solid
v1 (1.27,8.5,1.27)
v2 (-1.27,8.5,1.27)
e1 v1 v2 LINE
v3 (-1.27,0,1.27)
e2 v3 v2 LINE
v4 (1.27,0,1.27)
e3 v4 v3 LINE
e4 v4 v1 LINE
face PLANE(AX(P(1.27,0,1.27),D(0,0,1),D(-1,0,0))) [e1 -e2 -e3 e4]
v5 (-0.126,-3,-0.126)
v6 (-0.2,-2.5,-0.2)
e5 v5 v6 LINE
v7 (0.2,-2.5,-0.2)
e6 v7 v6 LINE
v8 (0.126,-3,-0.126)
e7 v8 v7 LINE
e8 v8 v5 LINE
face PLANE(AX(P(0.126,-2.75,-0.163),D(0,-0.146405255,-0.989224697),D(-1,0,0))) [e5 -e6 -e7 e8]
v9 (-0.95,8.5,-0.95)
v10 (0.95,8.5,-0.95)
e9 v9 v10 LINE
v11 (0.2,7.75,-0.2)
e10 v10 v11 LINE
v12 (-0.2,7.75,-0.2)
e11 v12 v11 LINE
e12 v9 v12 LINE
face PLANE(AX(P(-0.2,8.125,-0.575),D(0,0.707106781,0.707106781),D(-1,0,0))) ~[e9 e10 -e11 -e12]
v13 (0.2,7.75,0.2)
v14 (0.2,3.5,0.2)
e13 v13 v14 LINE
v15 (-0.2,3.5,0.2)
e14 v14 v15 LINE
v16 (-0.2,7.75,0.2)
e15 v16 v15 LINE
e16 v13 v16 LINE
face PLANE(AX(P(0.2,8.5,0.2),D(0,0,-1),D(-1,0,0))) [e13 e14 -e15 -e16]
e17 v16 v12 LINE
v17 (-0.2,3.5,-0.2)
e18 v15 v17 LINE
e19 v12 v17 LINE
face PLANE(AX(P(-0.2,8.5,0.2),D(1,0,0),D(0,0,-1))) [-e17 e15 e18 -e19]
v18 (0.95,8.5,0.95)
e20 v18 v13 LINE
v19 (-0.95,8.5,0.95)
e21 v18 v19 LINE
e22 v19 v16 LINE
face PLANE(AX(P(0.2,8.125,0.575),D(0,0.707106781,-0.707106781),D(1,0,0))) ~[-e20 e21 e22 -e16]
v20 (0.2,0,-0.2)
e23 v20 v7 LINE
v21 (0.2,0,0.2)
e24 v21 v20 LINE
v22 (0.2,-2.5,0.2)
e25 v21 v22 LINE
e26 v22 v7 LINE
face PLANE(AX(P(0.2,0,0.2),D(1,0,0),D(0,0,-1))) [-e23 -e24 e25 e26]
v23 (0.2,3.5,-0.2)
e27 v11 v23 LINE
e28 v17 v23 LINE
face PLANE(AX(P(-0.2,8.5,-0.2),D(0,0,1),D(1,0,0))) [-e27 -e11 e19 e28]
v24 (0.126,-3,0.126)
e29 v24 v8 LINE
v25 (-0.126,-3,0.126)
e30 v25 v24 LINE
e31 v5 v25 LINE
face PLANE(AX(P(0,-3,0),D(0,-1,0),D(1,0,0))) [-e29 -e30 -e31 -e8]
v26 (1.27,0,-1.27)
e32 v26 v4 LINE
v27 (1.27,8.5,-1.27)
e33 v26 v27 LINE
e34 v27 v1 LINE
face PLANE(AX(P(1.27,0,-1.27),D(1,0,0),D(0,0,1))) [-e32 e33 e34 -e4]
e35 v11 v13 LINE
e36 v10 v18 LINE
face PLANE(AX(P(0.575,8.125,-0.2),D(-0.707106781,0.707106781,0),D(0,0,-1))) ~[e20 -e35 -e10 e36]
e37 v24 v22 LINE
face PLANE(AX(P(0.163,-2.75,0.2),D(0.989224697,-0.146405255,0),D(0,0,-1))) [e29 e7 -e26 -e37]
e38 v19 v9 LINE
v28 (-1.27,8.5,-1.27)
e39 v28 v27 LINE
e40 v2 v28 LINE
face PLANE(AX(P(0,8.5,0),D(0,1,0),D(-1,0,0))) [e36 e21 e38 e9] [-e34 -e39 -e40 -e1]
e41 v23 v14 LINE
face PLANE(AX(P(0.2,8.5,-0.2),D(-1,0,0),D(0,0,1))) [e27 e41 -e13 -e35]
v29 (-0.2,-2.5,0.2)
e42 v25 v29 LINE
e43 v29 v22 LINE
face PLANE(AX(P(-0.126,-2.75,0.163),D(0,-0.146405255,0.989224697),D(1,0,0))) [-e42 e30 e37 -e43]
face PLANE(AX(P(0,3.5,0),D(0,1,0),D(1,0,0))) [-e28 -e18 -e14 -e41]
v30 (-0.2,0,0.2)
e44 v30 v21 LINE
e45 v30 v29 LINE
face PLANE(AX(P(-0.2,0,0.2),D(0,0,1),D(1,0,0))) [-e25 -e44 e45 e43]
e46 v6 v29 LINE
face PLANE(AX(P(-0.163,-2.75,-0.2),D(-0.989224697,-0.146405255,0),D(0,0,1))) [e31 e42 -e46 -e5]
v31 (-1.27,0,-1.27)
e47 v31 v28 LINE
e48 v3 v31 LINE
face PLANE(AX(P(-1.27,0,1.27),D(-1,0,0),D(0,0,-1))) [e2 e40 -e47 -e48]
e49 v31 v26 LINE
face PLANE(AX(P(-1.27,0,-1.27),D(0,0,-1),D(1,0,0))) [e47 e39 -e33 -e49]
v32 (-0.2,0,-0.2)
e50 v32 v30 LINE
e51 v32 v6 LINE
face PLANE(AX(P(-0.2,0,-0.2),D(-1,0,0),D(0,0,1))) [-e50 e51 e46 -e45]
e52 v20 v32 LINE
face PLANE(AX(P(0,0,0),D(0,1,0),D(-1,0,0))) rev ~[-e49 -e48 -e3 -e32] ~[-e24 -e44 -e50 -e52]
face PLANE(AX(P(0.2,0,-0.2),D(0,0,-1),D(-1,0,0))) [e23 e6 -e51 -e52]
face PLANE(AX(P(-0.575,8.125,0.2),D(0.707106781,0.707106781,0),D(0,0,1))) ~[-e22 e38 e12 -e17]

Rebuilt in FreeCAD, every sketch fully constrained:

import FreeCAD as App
import Part
import Sketcher


def edges_at(feature, points):
    """Names of the edges that pass closest to the given points."""
    edges = feature.Shape.Edges
    near = lambda p: min(range(len(edges)), key=lambda i: edges[i].distToShape(Part.Vertex(*p))[0])
    return sorted({f"Edge{near(p) + 1}" for p in points})

doc = App.newDocument("Part")
body = doc.addObject("PartDesign::Body", "Body")

# Sketch on XZ plane
sketch1 = body.newObject("Sketcher::SketchObject", "Sketch")
sketch1.AttachmentSupport = (doc.getObject("XZ_Plane"), [""])
sketch1.MapMode = "FlatFace"
sketch1.addGeometry(Part.LineSegment(App.Vector(-1.3, 1.3, 0), App.Vector(1.3, 1.3, 0)), False)
sketch1.addGeometry(Part.LineSegment(App.Vector(1.3, 1.3, 0), App.Vector(1.3, -1.3, 0)), False)
sketch1.addGeometry(Part.LineSegment(App.Vector(1.3, -1.3, 0), App.Vector(-1.3, -1.3, 0)), False)
sketch1.addGeometry(Part.LineSegment(App.Vector(-1.3, -1.3, 0), App.Vector(-1.3, 1.3, 0)), False)
sketch1.addConstraint(Sketcher.Constraint("Coincident", 0, 2, 1, 1))
sketch1.addConstraint(Sketcher.Constraint("Coincident", 1, 2, 2, 1))
sketch1.addConstraint(Sketcher.Constraint("Coincident", 2, 2, 3, 1))
sketch1.addConstraint(Sketcher.Constraint("Coincident", 3, 2, 0, 1))
sketch1.addConstraint(Sketcher.Constraint("Horizontal", 0))
sketch1.addConstraint(Sketcher.Constraint("Vertical", 1))
sketch1.addConstraint(Sketcher.Constraint("Horizontal", 2))
sketch1.addConstraint(Sketcher.Constraint("Vertical", 3))
sketch1.addConstraint(Sketcher.Constraint("Symmetric", 0, 2, 2, 2, -1, 1))
sketch1.addConstraint(Sketcher.Constraint("Equal", 2, 1))
sketch1.addConstraint(Sketcher.Constraint("DistanceX", 0, 1, 0, 2, 2.54))
pad1 = body.newObject("PartDesign::Pad", "Pad")
pad1.Profile = sketch1
pad1.Length = 8.5
pad1.Reversed = True

# Sketch on XZ plane
sketch2 = body.newObject("Sketcher::SketchObject", "Sketch001")
sketch2.AttachmentSupport = (doc.getObject("XZ_Plane"), [""])
sketch2.MapMode = "FlatFace"
sketch2.AttachmentOffset = App.Placement(App.Vector(0, 0, -8.5), App.Rotation())
sketch2.addGeometry(Part.LineSegment(App.Vector(-0.2, 0.2, 0), App.Vector(0.2, 0.2, 0)), False)
sketch2.addGeometry(Part.LineSegment(App.Vector(0.2, 0.2, 0), App.Vector(0.2, -0.2, 0)), False)
sketch2.addGeometry(Part.LineSegment(App.Vector(0.2, -0.2, 0), App.Vector(-0.2, -0.2, 0)), False)
sketch2.addGeometry(Part.LineSegment(App.Vector(-0.2, -0.2, 0), App.Vector(-0.2, 0.2, 0)), False)
sketch2.addConstraint(Sketcher.Constraint("Coincident", 0, 2, 1, 1))
sketch2.addConstraint(Sketcher.Constraint("Coincident", 1, 2, 2, 1))
sketch2.addConstraint(Sketcher.Constraint("Coincident", 2, 2, 3, 1))
sketch2.addConstraint(Sketcher.Constraint("Coincident", 3, 2, 0, 1))
sketch2.addConstraint(Sketcher.Constraint("Horizontal", 0))
sketch2.addConstraint(Sketcher.Constraint("Vertical", 1))
sketch2.addConstraint(Sketcher.Constraint("Horizontal", 2))
sketch2.addConstraint(Sketcher.Constraint("Vertical", 3))
sketch2.addConstraint(Sketcher.Constraint("Symmetric", 0, 2, 2, 2, -1, 1))
sketch2.addConstraint(Sketcher.Constraint("Equal", 2, 1))
sketch2.addConstraint(Sketcher.Constraint("DistanceX", 0, 1, 0, 2, 0.4))
pocket1 = body.newObject("PartDesign::Pocket", "Pocket")
pocket1.Profile = sketch2
pocket1.Length = 5
pocket1.Reversed = True
doc.recompute()

chamfer = body.newObject("PartDesign::Chamfer", "Chamfer")
chamfer.Base = (pocket1, edges_at(pocket1, [
    (0, 8.5, 0.2),
    (-0.2, 8.5, 0),
    (0, 8.5, -0.2),
    (0.2, 8.5, 0),
]))
chamfer.Size = 0.75

# Sketch on XZ plane
sketch3 = body.newObject("Sketcher::SketchObject", "Sketch002")
sketch3.AttachmentSupport = (doc.getObject("XZ_Plane"), [""])
sketch3.MapMode = "FlatFace"
sketch3.addGeometry(Part.LineSegment(App.Vector(0.2, 0.2, 0), App.Vector(-0.2, 0.2, 0)), False)
sketch3.addGeometry(Part.LineSegment(App.Vector(-0.2, 0.2, 0), App.Vector(-0.2, -0.2, 0)), False)
sketch3.addGeometry(Part.LineSegment(App.Vector(-0.2, -0.2, 0), App.Vector(0.2, -0.2, 0)), False)
sketch3.addGeometry(Part.LineSegment(App.Vector(0.2, -0.2, 0), App.Vector(0.2, 0.2, 0)), False)
sketch3.addConstraint(Sketcher.Constraint("Coincident", 0, 2, 1, 1))
sketch3.addConstraint(Sketcher.Constraint("Coincident", 1, 2, 2, 1))
sketch3.addConstraint(Sketcher.Constraint("Coincident", 2, 2, 3, 1))
sketch3.addConstraint(Sketcher.Constraint("Coincident", 3, 2, 0, 1))
sketch3.addConstraint(Sketcher.Constraint("Horizontal", 0))
sketch3.addConstraint(Sketcher.Constraint("Vertical", 1))
sketch3.addConstraint(Sketcher.Constraint("Horizontal", 2))
sketch3.addConstraint(Sketcher.Constraint("Vertical", 3))
sketch3.addConstraint(Sketcher.Constraint("Symmetric", 0, 2, 2, 2, -1, 1))
sketch3.addConstraint(Sketcher.Constraint("Equal", 2, 1))
sketch3.addConstraint(Sketcher.Constraint("DistanceX", 0, 2, 0, 1, 0.4))
pad2 = body.newObject("PartDesign::Pad", "Pad001")
pad2.Profile = sketch3
pad2.Length = 3
doc.recompute()

chamfer2 = body.newObject("PartDesign::Chamfer", "Chamfer001")
chamfer2.Base = (pad2, edges_at(pad2, [(-0.2, -3, 0)]))
chamfer2.ChamferType = "Two distances"
chamfer2.Size = 0.074
chamfer2.Size2 = 0.5
chamfer2.FlipDirection = True
doc.recompute()

chamfer3 = body.newObject("PartDesign::Chamfer", "Chamfer002")
chamfer3.Base = (chamfer2, edges_at(chamfer2, [(0.2, -3, 0)]))
chamfer3.ChamferType = "Two distances"
chamfer3.Size = 0.074
chamfer3.Size2 = 0.5
doc.recompute()

chamfer4 = body.newObject("PartDesign::Chamfer", "Chamfer003")
chamfer4.Base = (chamfer3, edges_at(chamfer3, [(0, -3, 0.2)]))
chamfer4.ChamferType = "Two distances"
chamfer4.Size = 0.074
chamfer4.Size2 = 0.5
doc.recompute()

chamfer5 = body.newObject("PartDesign::Chamfer", "Chamfer004")
chamfer5.Base = (chamfer4, edges_at(chamfer4, [(0, -3, -0.2)]))
chamfer5.ChamferType = "Two distances"
chamfer5.Size = 0.074
chamfer5.Size2 = 0.5

doc.recompute()
